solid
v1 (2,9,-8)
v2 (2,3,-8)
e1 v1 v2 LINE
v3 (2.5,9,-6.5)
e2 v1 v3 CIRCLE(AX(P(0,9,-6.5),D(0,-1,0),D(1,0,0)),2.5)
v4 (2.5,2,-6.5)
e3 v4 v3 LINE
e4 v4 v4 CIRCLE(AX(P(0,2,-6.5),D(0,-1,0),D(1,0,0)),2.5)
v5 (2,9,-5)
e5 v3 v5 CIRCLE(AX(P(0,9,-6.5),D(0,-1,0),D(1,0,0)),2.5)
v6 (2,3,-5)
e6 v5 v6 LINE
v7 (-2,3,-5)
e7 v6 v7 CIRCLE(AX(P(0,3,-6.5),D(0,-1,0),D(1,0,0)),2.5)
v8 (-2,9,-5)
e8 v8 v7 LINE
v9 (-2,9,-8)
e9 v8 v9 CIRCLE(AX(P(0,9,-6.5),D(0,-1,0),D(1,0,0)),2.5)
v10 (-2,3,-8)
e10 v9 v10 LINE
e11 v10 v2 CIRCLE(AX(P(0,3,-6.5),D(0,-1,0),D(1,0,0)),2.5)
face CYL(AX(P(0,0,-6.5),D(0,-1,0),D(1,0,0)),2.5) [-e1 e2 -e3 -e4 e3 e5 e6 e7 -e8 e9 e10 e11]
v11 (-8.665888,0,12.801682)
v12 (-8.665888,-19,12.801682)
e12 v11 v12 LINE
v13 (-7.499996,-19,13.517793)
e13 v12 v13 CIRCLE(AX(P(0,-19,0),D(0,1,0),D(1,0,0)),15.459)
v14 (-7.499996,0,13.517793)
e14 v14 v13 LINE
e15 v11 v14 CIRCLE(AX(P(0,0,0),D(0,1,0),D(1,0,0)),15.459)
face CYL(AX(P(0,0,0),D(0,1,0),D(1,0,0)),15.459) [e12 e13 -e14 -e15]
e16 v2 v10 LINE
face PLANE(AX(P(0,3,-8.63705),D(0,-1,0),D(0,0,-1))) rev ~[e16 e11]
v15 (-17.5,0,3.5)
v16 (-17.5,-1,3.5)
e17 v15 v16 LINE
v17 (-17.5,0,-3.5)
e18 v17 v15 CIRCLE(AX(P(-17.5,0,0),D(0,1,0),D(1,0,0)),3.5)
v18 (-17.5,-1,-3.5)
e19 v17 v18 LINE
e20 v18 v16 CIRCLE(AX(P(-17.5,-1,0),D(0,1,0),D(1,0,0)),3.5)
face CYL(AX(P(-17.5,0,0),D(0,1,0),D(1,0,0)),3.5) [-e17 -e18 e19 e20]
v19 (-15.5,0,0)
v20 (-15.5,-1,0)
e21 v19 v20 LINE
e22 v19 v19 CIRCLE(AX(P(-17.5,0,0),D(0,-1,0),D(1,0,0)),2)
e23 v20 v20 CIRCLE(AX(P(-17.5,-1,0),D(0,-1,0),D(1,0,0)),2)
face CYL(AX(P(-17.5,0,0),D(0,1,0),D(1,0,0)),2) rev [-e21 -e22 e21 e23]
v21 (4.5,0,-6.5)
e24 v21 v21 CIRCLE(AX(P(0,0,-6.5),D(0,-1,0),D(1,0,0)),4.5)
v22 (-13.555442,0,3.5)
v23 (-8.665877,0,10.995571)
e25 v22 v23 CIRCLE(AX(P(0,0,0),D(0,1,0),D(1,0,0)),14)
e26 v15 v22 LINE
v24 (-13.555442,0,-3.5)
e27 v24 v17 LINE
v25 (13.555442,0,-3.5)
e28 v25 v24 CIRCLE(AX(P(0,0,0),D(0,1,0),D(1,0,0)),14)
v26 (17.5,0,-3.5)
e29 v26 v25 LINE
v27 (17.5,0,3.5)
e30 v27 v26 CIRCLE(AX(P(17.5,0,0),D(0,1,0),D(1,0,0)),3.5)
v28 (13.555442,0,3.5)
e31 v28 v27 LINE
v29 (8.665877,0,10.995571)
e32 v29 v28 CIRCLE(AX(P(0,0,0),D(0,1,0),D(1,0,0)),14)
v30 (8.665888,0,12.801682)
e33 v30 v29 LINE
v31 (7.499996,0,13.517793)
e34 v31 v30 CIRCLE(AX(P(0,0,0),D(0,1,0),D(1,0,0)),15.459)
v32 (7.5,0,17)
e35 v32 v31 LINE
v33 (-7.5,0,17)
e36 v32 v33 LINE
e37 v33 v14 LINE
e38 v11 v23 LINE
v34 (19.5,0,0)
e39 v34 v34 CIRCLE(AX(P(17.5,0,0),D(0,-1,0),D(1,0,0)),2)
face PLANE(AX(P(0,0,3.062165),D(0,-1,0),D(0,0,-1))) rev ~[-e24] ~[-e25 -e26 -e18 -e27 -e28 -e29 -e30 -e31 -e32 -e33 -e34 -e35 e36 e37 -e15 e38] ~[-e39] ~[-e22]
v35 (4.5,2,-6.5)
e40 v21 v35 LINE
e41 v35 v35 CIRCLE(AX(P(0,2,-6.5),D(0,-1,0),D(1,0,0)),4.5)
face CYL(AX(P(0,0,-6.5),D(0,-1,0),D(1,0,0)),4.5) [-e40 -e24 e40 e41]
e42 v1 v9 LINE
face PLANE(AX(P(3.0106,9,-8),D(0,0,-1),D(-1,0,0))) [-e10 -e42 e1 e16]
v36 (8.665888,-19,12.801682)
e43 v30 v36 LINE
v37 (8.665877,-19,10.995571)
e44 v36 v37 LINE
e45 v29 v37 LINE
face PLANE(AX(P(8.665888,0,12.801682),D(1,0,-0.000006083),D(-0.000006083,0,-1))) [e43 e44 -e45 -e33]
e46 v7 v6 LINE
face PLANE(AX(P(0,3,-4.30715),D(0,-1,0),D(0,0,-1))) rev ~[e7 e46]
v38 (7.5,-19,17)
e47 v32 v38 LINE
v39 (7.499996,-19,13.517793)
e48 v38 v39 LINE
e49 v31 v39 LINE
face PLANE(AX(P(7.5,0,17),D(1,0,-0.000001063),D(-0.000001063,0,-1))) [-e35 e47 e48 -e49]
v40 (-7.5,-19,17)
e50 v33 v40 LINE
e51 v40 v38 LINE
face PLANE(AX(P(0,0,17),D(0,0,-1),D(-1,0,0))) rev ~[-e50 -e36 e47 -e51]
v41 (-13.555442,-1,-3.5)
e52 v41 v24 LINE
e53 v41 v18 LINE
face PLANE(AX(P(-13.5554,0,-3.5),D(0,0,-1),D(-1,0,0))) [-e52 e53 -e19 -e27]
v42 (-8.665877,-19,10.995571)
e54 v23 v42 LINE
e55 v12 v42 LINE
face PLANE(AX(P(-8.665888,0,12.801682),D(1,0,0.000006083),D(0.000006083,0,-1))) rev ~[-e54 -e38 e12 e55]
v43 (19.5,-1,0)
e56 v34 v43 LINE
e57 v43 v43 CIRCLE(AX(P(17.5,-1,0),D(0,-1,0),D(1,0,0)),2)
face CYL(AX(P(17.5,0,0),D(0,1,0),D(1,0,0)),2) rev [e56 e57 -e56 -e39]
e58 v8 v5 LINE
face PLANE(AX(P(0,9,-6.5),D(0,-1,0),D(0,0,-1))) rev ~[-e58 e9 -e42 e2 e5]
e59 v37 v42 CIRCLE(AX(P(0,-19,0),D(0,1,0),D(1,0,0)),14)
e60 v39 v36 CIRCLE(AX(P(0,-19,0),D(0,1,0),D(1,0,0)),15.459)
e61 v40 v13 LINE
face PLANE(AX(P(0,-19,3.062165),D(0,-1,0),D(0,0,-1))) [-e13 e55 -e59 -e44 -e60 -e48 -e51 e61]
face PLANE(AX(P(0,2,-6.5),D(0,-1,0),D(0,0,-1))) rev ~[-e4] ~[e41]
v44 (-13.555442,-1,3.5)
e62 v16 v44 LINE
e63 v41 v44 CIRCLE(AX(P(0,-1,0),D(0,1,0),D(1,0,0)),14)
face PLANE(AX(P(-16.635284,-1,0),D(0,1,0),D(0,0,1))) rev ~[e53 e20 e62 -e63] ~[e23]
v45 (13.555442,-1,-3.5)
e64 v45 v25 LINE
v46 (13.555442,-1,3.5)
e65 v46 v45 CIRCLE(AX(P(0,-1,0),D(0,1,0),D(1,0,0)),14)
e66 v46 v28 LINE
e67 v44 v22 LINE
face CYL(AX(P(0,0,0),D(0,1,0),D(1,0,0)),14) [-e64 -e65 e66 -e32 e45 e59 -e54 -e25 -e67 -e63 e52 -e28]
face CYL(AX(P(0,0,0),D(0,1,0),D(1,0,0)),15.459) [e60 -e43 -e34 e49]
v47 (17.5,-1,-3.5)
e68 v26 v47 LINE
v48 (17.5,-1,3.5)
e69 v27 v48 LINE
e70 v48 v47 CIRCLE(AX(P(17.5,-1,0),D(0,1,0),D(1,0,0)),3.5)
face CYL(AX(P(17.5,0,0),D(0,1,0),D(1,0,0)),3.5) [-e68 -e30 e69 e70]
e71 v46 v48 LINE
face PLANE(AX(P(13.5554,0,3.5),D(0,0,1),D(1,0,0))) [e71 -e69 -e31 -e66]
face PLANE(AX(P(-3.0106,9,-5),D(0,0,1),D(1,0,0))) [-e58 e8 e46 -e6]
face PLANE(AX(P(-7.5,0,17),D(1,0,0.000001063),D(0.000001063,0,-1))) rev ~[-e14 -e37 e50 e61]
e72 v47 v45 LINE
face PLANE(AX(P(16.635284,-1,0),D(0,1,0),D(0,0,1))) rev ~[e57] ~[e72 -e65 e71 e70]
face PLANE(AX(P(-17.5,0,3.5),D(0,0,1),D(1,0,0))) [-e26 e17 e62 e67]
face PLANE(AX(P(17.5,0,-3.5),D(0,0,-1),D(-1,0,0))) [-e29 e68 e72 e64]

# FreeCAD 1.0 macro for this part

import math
import FreeCAD as App
import Part
import Sketcher

V = App.Vector
Q = App.Units.Quantity


def add_polygon(sketch, points):
    """Adds a closed chain of lines whose ends are joined by coincident constraints."""
    first, n = sketch.GeometryCount, len(points)
    for a, b in zip(points, points[1:] + points[:1]):
        sketch.addGeometry(Part.LineSegment(App.Vector(*a, 0), App.Vector(*b, 0)), False)
    for i in range(n):
        sketch.addConstraint(Sketcher.Constraint("Coincident", first + i, 2, first + (i + 1) % n, 1))

doc = App.newDocument("Part")
body = doc.addObject("PartDesign::Body", "Body")

# Sketch on XZ plane
sketch1 = body.newObject("Sketcher::SketchObject", "Sketch")
sketch1.AttachmentSupport = (doc.getObject("XZ_Plane"), [""])
sketch1.MapMode = "FlatFace"
sketch1.addGeometry(Part.LineSegment(V(7.5, 17, 0), V(-7.5, 17, 0)), False)
sketch1.addGeometry(Part.LineSegment(V(-7.5, 17, 0), V(-7.5, 13.5178, 0)), False)
sketch1.addGeometry(Part.ArcOfCircle(Part.Circle(V(-0.003837, 0.005947, 0), V(0, 0, 1), 15.451946), math.radians(119.020824), math.radians(124.09597)), False)
sketch1.addGeometry(Part.LineSegment(V(-8.6659, 12.8017, 0), V(-8.6659, 10.9956, 0)), False)
sketch1.addGeometry(Part.ArcOfCircle(Part.Circle(V(0, 0, 0), V(0, 0, 1), 14.000037), math.radians(128.242505), math.radians(411.757495)), False)
sketch1.addGeometry(Part.LineSegment(V(8.6659, 10.9956, 0), V(8.6659, 12.8017, 0)), False)
sketch1.addGeometry(Part.ArcOfCircle(Part.Circle(V(-0.003573, -0.006117, 0), V(0, 0, 1), 15.46609), math.radians(55.906353), math.radians(60.976854)), False)
sketch1.addGeometry(Part.LineSegment(V(7.5, 13.5178, 0), V(7.5, 17, 0)), False)
sketch1.addConstraint(Sketcher.Constraint("Coincident", 0, 2, 1, 1))
sketch1.addConstraint(Sketcher.Constraint("Coincident", 1, 2, 2, 1))
sketch1.addConstraint(Sketcher.Constraint("Coincident", 2, 2, 3, 1))
sketch1.addConstraint(Sketcher.Constraint("Coincident", 3, 2, 4, 1))
sketch1.addConstraint(Sketcher.Constraint("Coincident", 4, 2, 5, 1))
sketch1.addConstraint(Sketcher.Constraint("Coincident", 5, 2, 6, 1))
sketch1.addConstraint(Sketcher.Constraint("Coincident", 6, 2, 7, 1))
sketch1.addConstraint(Sketcher.Constraint("Coincident", 7, 2, 0, 1))
sketch1.addConstraint(Sketcher.Constraint("Horizontal", 0))
sketch1.addConstraint(Sketcher.Constraint("Vertical", 1))
sketch1.addConstraint(Sketcher.Constraint("Vertical", 3))
sketch1.addConstraint(Sketcher.Constraint("Vertical", 5))
sketch1.addConstraint(Sketcher.Constraint("Vertical", 7))
sketch1.addConstraint(Sketcher.Constraint("Coincident", 4, 3, -1, 1))
sketch1.addConstraint(Sketcher.Constraint("Symmetric", 2, 2, 5, 2, -2))
sketch1.addConstraint(Sketcher.Constraint("Symmetric", 1, 2, 6, 2, -2))
sketch1.addConstraint(Sketcher.Constraint("Symmetric", 2, 3, 6, 3, -1))
sketch1.addConstraint(Sketcher.Constraint("Radius", 4, Q("14 mm")))
sketch1.addConstraint(Sketcher.Constraint("DistanceX", 0, 2, 0, 1, Q("15 mm")))
sketch1.addConstraint(Sketcher.Constraint("DistanceY", -1, 1, 0, 2, Q("17 mm")))
sketch1.addConstraint(Sketcher.Constraint("Radius", 2, Q("15.452 mm")))
sketch1.addConstraint(Sketcher.Constraint("Radius", 6, Q("15.466 mm")))
sketch1.addConstraint(Sketcher.Constraint("DistanceY", 3, 2, 3, 1, Q("1.806 mm")))
pad1 = body.newObject("PartDesign::Pad", "Pad")
pad1.Profile = sketch1
pad1.Length = 19

# Sketch on XZ plane
sketch2 = body.newObject("Sketcher::SketchObject", "Sketch001")
sketch2.AttachmentSupport = (doc.getObject("XZ_Plane"), [""])
sketch2.MapMode = "FlatFace"
sketch2.addGeometry(Part.LineSegment(V(-13.6, 3.5, 0), V(-17.5, 3.5, 0)), False)
sketch2.addGeometry(Part.ArcOfCircle(Part.Circle(V(-17.5, 0, 0), V(0, 0, 1), 3.5), math.radians(90), math.radians(270)), False)
sketch2.addGeometry(Part.LineSegment(V(-17.5, -3.5, 0), V(-13.6, -3.5, 0)), False)
sketch2.addGeometry(Part.LineSegment(V(-13.6, -3.5, 0), V(-13.6, 3.5, 0)), False)
sketch2.addGeometry(Part.Circle(V(-17.5, 0, 0), V(0, 0, 1), 2), False)
sketch2.addGeometry(Part.LineSegment(V(13.6, -3.5, 0), V(17.5, -3.5, 0)), False)
sketch2.addGeometry(Part.ArcOfCircle(Part.Circle(V(17.5, 0, 0), V(0, 0, 1), 3.5), math.radians(-90), math.radians(90)), False)
sketch2.addGeometry(Part.LineSegment(V(17.5, 3.5, 0), V(13.6, 3.5, 0)), False)
sketch2.addGeometry(Part.LineSegment(V(13.6, 3.5, 0), V(13.6, -3.5, 0)), False)
sketch2.addGeometry(Part.Circle(V(17.5, 0, 0), V(0, 0, 1), 2), False)
sketch2.addConstraint(Sketcher.Constraint("Tangent", 0, 2, 1, 1))
sketch2.addConstraint(Sketcher.Constraint("Tangent", 1, 2, 2, 1))
sketch2.addConstraint(Sketcher.Constraint("Coincident", 2, 2, 3, 1))
sketch2.addConstraint(Sketcher.Constraint("Coincident", 3, 2, 0, 1))
sketch2.addConstraint(Sketcher.Constraint("Tangent", 5, 2, 6, 1))
sketch2.addConstraint(Sketcher.Constraint("Tangent", 6, 2, 7, 1))
sketch2.addConstraint(Sketcher.Constraint("Coincident", 7, 2, 8, 1))
sketch2.addConstraint(Sketcher.Constraint("Coincident", 8, 2, 5, 1))
sketch2.addConstraint(Sketcher.Constraint("Horizontal", 0))
sketch2.addConstraint(Sketcher.Constraint("Horizontal", 2))
sketch2.addConstraint(Sketcher.Constraint("Vertical", 3))
sketch2.addConstraint(Sketcher.Constraint("Horizontal", 5))
sketch2.addConstraint(Sketcher.Constraint("Horizontal", 7))
sketch2.addConstraint(Sketcher.Constraint("Vertical", 8))
sketch2.addConstraint(Sketcher.Constraint("Coincident", 4, 3, 1, 3))
sketch2.addConstraint(Sketcher.Constraint("Coincident", 9, 3, 6, 3))
sketch2.addConstraint(Sketcher.Constraint("Equal", 1, 6))
sketch2.addConstraint(Sketcher.Constraint("Equal", 4, 9))
sketch2.addConstraint(Sketcher.Constraint("Symmetric", 1, 3, 6, 3, -1, 1))
sketch2.addConstraint(Sketcher.Constraint("Symmetric", 3, 2, 7, 2, -2))
sketch2.addConstraint(Sketcher.Constraint("Diameter", 4, Q("4 mm")))
sketch2.addConstraint(Sketcher.Constraint("Radius", 1, Q("3.5 mm")))
sketch2.addConstraint(Sketcher.Constraint("DistanceX", 1, 3, 6, 3, Q("35 mm")))
sketch2.addConstraint(Sketcher.Constraint("DistanceX", 0, 2, 0, 1, Q("3.9446 mm")))
pad2 = body.newObject("PartDesign::Pad", "Pad001")
pad2.Profile = sketch2
pad2.Length = 1

# Sketch on XZ plane
sketch3 = body.newObject("Sketcher::SketchObject", "Sketch002")
sketch3.AttachmentSupport = (doc.getObject("XZ_Plane"), [""])
sketch3.MapMode = "FlatFace"
sketch3.addGeometry(Part.Circle(V(0, -6.5, 0), V(0, 0, 1), 4.5), False)
sketch3.addConstraint(Sketcher.Constraint("PointOnObject", 0, 3, -2))
sketch3.addConstraint(Sketcher.Constraint("Diameter", 0, Q("9 mm")))
sketch3.addConstraint(Sketcher.Constraint("DistanceY", 0, 3, -1, 1, Q("6.5 mm")))
pad3 = body.newObject("PartDesign::Pad", "Pad002")
pad3.Profile = sketch3
pad3.Length = 2
pad3.Reversed = True

# Sketch on XZ plane
sketch4 = body.newObject("Sketcher::SketchObject", "Sketch003")
sketch4.AttachmentSupport = (doc.getObject("XZ_Plane"), [""])
sketch4.MapMode = "FlatFace"
sketch4.addGeometry(Part.Circle(V(0, -6.5, 0), V(0, 0, 1), 2.5), False)
sketch4.addConstraint(Sketcher.Constraint("PointOnObject", 0, 3, -2))
sketch4.addConstraint(Sketcher.Constraint("Diameter", 0, Q("5 mm")))
sketch4.addConstraint(Sketcher.Constraint("DistanceY", 0, 3, -1, 1, Q("6.5 mm")))
pad4 = body.newObject("PartDesign::Pad", "Pad003")
pad4.Profile = sketch4
pad4.Length = 9
pad4.Reversed = True

# Sketch on XZ plane
sketch5 = body.newObject("Sketcher::SketchObject", "Sketch004")
sketch5.AttachmentSupport = (doc.getObject("XZ_Plane"), [""])
sketch5.MapMode = "FlatFace"
sketch5.AttachmentOffset = App.Placement(V(0, 0, -9), App.Rotation())
add_polygon(sketch5, [(3, -5), (-3, -5), (-3, -3.6), (3, -3.6)])  # lines 0-3
add_polygon(sketch5, [(-3, -8), (3, -8), (3, -9.3), (-3, -9.3)])  # lines 4-7
sketch5.addConstraint(Sketcher.Constraint("Horizontal", 0))
sketch5.addConstraint(Sketcher.Constraint("Vertical", 1))
sketch5.addConstraint(Sketcher.Constraint("Horizontal", 2))
sketch5.addConstraint(Sketcher.Constraint("Vertical", 3))
sketch5.addConstraint(Sketcher.Constraint("Horizontal", 4))
sketch5.addConstraint(Sketcher.Constraint("Vertical", 5))
sketch5.addConstraint(Sketcher.Constraint("Horizontal", 6))
sketch5.addConstraint(Sketcher.Constraint("Vertical", 7))
sketch5.addConstraint(Sketcher.Constraint("Vertical", 3, 2, 4, 2))
sketch5.addConstraint(Sketcher.Constraint("Vertical", 1, 2, 6, 2))
sketch5.addConstraint(Sketcher.Constraint("DistanceY", 0, 2, -1, 1, Q("5 mm")))
sketch5.addConstraint(Sketcher.Constraint("DistanceY", 4, 2, -1, 1, Q("8 mm")))
sketch5.addConstraint(Sketcher.Constraint("DistanceY", 5, 2, 5, 1, Q("1.274 mm")))
sketch5.addConstraint(Sketcher.Constraint("DistanceX", 0, 2, 0, 1, Q("6.0212 mm")))
sketch5.addConstraint(Sketcher.Constraint("DistanceY", 1, 1, 1, 2, Q("1.3857 mm")))
sketch5.addConstraint(Sketcher.Constraint("DistanceX", 0, 2, -1, 1, Q("3.0106 mm")))
pocket1 = body.newObject("PartDesign::Pocket", "Pocket")
pocket1.Profile = sketch5
pocket1.Length = 6
pocket1.Reversed = True

doc.recompute()
